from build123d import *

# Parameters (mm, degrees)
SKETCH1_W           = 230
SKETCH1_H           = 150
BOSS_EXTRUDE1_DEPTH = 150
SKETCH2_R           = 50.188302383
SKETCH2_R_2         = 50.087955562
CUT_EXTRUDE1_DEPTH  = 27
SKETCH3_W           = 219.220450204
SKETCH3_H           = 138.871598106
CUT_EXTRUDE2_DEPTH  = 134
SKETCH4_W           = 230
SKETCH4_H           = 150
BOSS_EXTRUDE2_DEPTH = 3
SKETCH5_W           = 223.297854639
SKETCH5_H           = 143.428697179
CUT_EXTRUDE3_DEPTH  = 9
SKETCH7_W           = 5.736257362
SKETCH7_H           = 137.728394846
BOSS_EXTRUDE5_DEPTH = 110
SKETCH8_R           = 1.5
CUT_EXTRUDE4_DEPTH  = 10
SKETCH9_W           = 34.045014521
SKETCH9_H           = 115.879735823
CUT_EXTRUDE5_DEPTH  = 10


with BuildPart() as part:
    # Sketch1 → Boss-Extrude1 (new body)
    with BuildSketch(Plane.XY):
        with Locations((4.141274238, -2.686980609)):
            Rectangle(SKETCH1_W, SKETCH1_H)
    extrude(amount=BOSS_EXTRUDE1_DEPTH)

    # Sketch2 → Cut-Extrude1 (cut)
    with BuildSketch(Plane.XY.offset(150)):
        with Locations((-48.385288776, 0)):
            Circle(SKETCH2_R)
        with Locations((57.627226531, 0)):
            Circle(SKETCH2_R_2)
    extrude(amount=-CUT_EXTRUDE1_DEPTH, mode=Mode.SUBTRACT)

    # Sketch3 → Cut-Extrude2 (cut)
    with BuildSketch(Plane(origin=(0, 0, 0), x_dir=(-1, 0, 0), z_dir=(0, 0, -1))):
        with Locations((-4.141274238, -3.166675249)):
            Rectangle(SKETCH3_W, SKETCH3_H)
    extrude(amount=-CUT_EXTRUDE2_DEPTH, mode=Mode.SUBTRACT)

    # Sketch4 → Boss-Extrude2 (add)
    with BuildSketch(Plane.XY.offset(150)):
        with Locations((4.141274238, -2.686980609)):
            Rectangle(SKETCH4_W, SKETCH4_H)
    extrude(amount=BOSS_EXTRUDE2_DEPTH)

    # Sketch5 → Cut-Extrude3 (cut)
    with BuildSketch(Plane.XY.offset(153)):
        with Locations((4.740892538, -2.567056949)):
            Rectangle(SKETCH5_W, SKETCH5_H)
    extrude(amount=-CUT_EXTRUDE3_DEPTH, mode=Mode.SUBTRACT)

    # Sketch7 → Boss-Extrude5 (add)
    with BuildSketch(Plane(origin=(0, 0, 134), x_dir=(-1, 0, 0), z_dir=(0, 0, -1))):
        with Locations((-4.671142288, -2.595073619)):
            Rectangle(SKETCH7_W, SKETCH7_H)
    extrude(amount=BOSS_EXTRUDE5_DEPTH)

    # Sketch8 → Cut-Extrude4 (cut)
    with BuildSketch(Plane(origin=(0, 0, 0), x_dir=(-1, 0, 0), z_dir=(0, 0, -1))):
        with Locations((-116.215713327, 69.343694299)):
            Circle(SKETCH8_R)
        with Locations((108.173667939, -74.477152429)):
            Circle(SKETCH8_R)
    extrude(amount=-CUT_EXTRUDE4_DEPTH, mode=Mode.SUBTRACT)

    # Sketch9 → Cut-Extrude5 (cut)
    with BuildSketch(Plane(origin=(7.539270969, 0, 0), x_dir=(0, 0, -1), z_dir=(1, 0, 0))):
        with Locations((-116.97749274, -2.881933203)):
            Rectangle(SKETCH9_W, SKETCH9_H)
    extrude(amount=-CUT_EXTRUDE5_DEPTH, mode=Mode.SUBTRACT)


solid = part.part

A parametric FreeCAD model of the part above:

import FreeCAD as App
import Part
import Sketcher

V = App.Vector


def add_polygon(sketch, points):
    """Adds a closed chain of lines whose ends are joined by coincident constraints."""
    first, n = sketch.GeometryCount, len(points)
    for a, b in zip(points, points[1:] + points[:1]):
        sketch.addGeometry(Part.LineSegment(App.Vector(*a, 0), App.Vector(*b, 0)), False)
    for i in range(n):
        sketch.addConstraint(Sketcher.Constraint("Coincident", first + i, 2, first + (i + 1) % n, 1))

doc = App.newDocument("Part")
body = doc.addObject("PartDesign::Body", "Body")

# Sketch on XY plane
sketch1 = body.newObject("Sketcher::SketchObject", "Sketch")
sketch1.AttachmentSupport = (doc.getObject("XY_Plane"), [""])
sketch1.MapMode = "FlatFace"
add_polygon(sketch1, [(-110.858726, 72.313019), (-110.858726, -77.686981), (119.141274, -77.686981), (119.141274, 72.313019)])  # lines 0-3
sketch1.addConstraint([
    Sketcher.Constraint("Vertical", 0),
    Sketcher.Constraint("Horizontal", 1),
    Sketcher.Constraint("Vertical", 2),
    Sketcher.Constraint("Horizontal", 3),
    Sketcher.Constraint("DistanceX", 1, 1, 1, 2, 230.0),
    Sketcher.Constraint("DistanceY", 0, 2, 0, 1, 150.0),
    Sketcher.Constraint("DistanceY", 0, 2, -1, 1, 77.686981),
    Sketcher.Constraint("DistanceX", 0, 2, -1, 1, 110.858726),
])
pad1 = body.newObject("PartDesign::Pad", "Pad")
pad1.Profile = sketch1
pad1.Length = 150

# Sketch on XY plane
sketch2 = body.newObject("Sketcher::SketchObject", "Sketch001")
sketch2.AttachmentSupport = (doc.getObject("XY_Plane"), [""])
sketch2.MapMode = "FlatFace"
sketch2.AttachmentOffset = App.Placement(V(0, 0, 150), App.Rotation())
sketch2.addGeometry([
    Part.Circle(V(-48.385289, 0, 0), V(0, 0, 1), 50.188302),
    Part.Circle(V(57.627227, 0, 0), V(0, 0, 1), 50.087956),
], False)
sketch2.addConstraint([
    Sketcher.Constraint("PointOnObject", 0, 3, -1),
    Sketcher.Constraint("PointOnObject", 1, 3, -1),
    Sketcher.Constraint("Diameter", 1, 100.175911),
    Sketcher.Constraint("Diameter", 0, 100.376605),
    Sketcher.Constraint("DistanceX", 0, 3, -1, 1, 48.385289),
    Sketcher.Constraint("DistanceX", -1, 1, 1, 3, 57.627227),
])
pocket1 = body.newObject("PartDesign::Pocket", "Pocket")
pocket1.Profile = sketch2
pocket1.Length = 27

# Sketch on XY plane
sketch3 = body.newObject("Sketcher::SketchObject", "Sketch002")
sketch3.AttachmentSupport = (doc.getObject("XY_Plane"), [""])
sketch3.MapMode = "FlatFace"
add_polygon(sketch3, [(113.751499, 66.269124), (113.751499, -72.602474), (-105.468951, -72.602474), (-105.468951, 66.269124)])  # lines 0-3
sketch3.addConstraint([
    Sketcher.Constraint("Vertical", 0),
    Sketcher.Constraint("Horizontal", 1),
    Sketcher.Constraint("Vertical", 2),
    Sketcher.Constraint("Horizontal", 3),
    Sketcher.Constraint("DistanceY", 0, 2, 0, 1, 138.871598),
    Sketcher.Constraint("DistanceX", 1, 2, 1, 1, 219.22045),
    Sketcher.Constraint("DistanceX", -1, 1, 0, 2, 113.751499),
    Sketcher.Constraint("DistanceY", 0, 2, -1, 1, 72.602474),
])
pocket2 = body.newObject("PartDesign::Pocket", "Pocket001")
pocket2.Profile = sketch3
pocket2.Length = 134
pocket2.Reversed = True

# Sketch on XY plane
sketch4 = body.newObject("Sketcher::SketchObject", "Sketch003")
sketch4.AttachmentSupport = (doc.getObject("XY_Plane"), [""])
sketch4.MapMode = "FlatFace"
sketch4.AttachmentOffset = App.Placement(V(0, 0, 150), App.Rotation())
add_polygon(sketch4, [(-110.858726, 72.313019), (-110.858726, -77.686981), (119.141274, -77.686981), (119.141274, 72.313019)])  # lines 0-3
sketch4.addConstraint([
    Sketcher.Constraint("Vertical", 0),
    Sketcher.Constraint("Horizontal", 1),
    Sketcher.Constraint("Vertical", 2),
    Sketcher.Constraint("Horizontal", 3),
    Sketcher.Constraint("DistanceX", 1, 1, 1, 2, 230.0),
    Sketcher.Constraint("DistanceY", 0, 2, 0, 1, 150.0),
    Sketcher.Constraint("DistanceY", 0, 2, -1, 1, 77.686981),
    Sketcher.Constraint("DistanceX", 0, 2, -1, 1, 110.858726),
])
pad2 = body.newObject("PartDesign::Pad", "Pad001")
pad2.Profile = sketch4
pad2.Length = 3

# Sketch on XY plane
sketch5 = body.newObject("Sketcher::SketchObject", "Sketch004")
sketch5.AttachmentSupport = (doc.getObject("XY_Plane"), [""])
sketch5.MapMode = "FlatFace"
sketch5.AttachmentOffset = App.Placement(V(0, 0, 153), App.Rotation())
add_polygon(sketch5, [(-106.908035, 69.147292), (-106.908035, -74.281406), (116.38982, -74.281406), (116.38982, 69.147292)])  # lines 0-3
sketch5.addConstraint([
    Sketcher.Constraint("Vertical", 0),
    Sketcher.Constraint("Horizontal", 1),
    Sketcher.Constraint("Vertical", 2),
    Sketcher.Constraint("Horizontal", 3),
    Sketcher.Constraint("DistanceX", 1, 1, 1, 2, 223.297855),
    Sketcher.Constraint("DistanceY", 0, 2, 0, 1, 143.428697),
    Sketcher.Constraint("DistanceX", -1, 1, 1, 2, 116.38982),
    Sketcher.Constraint("DistanceY", -1, 1, 2, 2, 69.147292),
])
pocket3 = body.newObject("PartDesign::Pocket", "Pocket002")
pocket3.Profile = sketch5
pocket3.Length = 9

# Sketch on XY plane
sketch6 = body.newObject("Sketcher::SketchObject", "Sketch005")
sketch6.AttachmentSupport = (doc.getObject("XY_Plane"), [""])
sketch6.MapMode = "FlatFace"
sketch6.AttachmentOffset = App.Placement(V(0, 0, 134), App.Rotation())
add_polygon(sketch6, [(7.539271, 66.269124), (7.539271, -71.459271), (1.803014, -71.459271), (1.803014, 66.269124)])  # lines 0-3
sketch6.addConstraint([
    Sketcher.Constraint("Vertical", 0),
    Sketcher.Constraint("Horizontal", 1),
    Sketcher.Constraint("Vertical", 2),
    Sketcher.Constraint("Horizontal", 3),
    Sketcher.Constraint("DistanceX", 1, 2, 1, 1, 5.736257),
    Sketcher.Constraint("DistanceY", 0, 2, 0, 1, 137.728395),
    Sketcher.Constraint("DistanceX", -1, 1, 0, 2, 7.539271),
    Sketcher.Constraint("DistanceY", 0, 2, -1, 1, 71.459271),
])
pad3 = body.newObject("PartDesign::Pad", "Pad002")
pad3.Profile = sketch6
pad3.Length = 110
pad3.Reversed = True

# Sketch on XY plane
sketch7 = body.newObject("Sketcher::SketchObject", "Sketch006")
sketch7.AttachmentSupport = (doc.getObject("XY_Plane"), [""])
sketch7.MapMode = "FlatFace"
sketch7.addGeometry([
    Part.Circle(V(116.215713, 69.343694, 0), V(0, 0, 1), 1.5),
    Part.Circle(V(-108.173668, -74.477152, 0), V(0, 0, 1), 1.5),
], False)
sketch7.addConstraint([
    Sketcher.Constraint("Equal", 0, 1),
    Sketcher.Constraint("Diameter", 0, 3.0),
    Sketcher.Constraint("DistanceX", 1, 3, 0, 3, 224.389381),
    Sketcher.Constraint("DistanceX", -1, 1, 0, 3, 116.215713),
    Sketcher.Constraint("DistanceY", -1, 1, 0, 3, 69.343694),
    Sketcher.Constraint("DistanceY", 1, 3, -1, 1, 74.477152),
])
pocket4 = body.newObject("PartDesign::Pocket", "Pocket003")
pocket4.Profile = sketch7
pocket4.Length = 10
pocket4.Reversed = True

# Sketch on YZ plane
sketch8 = body.newObject("Sketcher::SketchObject", "Sketch007")
sketch8.AttachmentSupport = (doc.getObject("YZ_Plane"), [""])
sketch8.MapMode = "FlatFace"
sketch8.AttachmentOffset = App.Placement(V(0, 0, 7.539271), App.Rotation())
add_polygon(sketch8, [(55.057935, 134), (-60.821801, 134), (-60.821801, 99.954985), (55.057935, 99.954985)])  # lines 0-3
sketch8.addConstraint([
    Sketcher.Constraint("Horizontal", 0),
    Sketcher.Constraint("Vertical", 1),
    Sketcher.Constraint("Horizontal", 2),
    Sketcher.Constraint("Vertical", 3),
    Sketcher.Constraint("DistanceY", -1, 1, 0, 2, 134.0),
    Sketcher.Constraint("DistanceX", 0, 2, -1, 1, 60.821801),
    Sketcher.Constraint("DistanceX", 0, 2, 0, 1, 115.879736),
    Sketcher.Constraint("DistanceY", 1, 2, 1, 1, 34.045015),
])
pocket5 = body.newObject("PartDesign::Pocket", "Pocket004")
pocket5.Profile = sketch8
pocket5.Length = 10

doc.recompute()
